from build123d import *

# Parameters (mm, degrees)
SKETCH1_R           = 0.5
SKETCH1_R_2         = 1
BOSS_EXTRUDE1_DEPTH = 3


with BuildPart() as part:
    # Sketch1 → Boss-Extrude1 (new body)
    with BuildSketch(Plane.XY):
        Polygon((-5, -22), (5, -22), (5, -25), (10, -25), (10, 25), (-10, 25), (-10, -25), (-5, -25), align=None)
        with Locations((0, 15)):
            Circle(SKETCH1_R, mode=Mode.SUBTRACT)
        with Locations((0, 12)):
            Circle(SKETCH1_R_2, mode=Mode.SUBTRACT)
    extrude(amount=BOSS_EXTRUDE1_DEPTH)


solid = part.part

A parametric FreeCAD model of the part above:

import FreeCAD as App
import Part
import Sketcher
from FreeCAD import Vector


def add_polygon(sketch, points):
    """Adds a closed chain of lines whose ends are joined by coincident constraints."""
    first, n = sketch.GeometryCount, len(points)
    for a, b in zip(points, points[1:] + points[:1]):
        sketch.addGeometry(Part.LineSegment(App.Vector(*a, 0), App.Vector(*b, 0)), False)
    for i in range(n):
        sketch.addConstraint(Sketcher.Constraint("Coincident", first + i, 2, first + (i + 1) % n, 1))

doc = App.newDocument("Part")
body = doc.addObject("PartDesign::Body", "Body")

# Sketch on XY plane
sketch1 = body.newObject("Sketcher::SketchObject", "Sketch")
sketch1.AttachmentSupport = (doc.getObject("XY_Plane"), [""])
sketch1.MapMode = "FlatFace"
add_polygon(sketch1, [(-5, -22), (5, -22), (5, -25), (10, -25), (10, 25), (-10, 25), (-10, -25), (-5, -25)])  # lines 0-7
sketch1.addGeometry(Part.Circle(Vector(0, 12, 0), Vector(0, 0, 1), 1), False)  # 8
sketch1.addGeometry(Part.Circle(Vector(0, 15, 0), Vector(0, 0, 1), 0.5), False)  # 9
sketch1.addConstraint(Sketcher.Constraint("Horizontal", 0))
sketch1.addConstraint(Sketcher.Constraint("Vertical", 1))
sketch1.addConstraint(Sketcher.Constraint("Horizontal", 2))
sketch1.addConstraint(Sketcher.Constraint("Vertical", 3))
sketch1.addConstraint(Sketcher.Constraint("Horizontal", 4))
sketch1.addConstraint(Sketcher.Constraint("Vertical", 5))
sketch1.addConstraint(Sketcher.Constraint("Horizontal", 6))
sketch1.addConstraint(Sketcher.Constraint("Vertical", 7))
sketch1.addConstraint(Sketcher.Constraint("Symmetric", 2, 2, 4, 2, -1, 1))
sketch1.addConstraint(Sketcher.Constraint("Symmetric", 1, 2, 6, 2, -2))
sketch1.addConstraint(Sketcher.Constraint("PointOnObject", 8, 3, -2))
sketch1.addConstraint(Sketcher.Constraint("PointOnObject", 9, 3, -2))
sketch1.addConstraint(Sketcher.Constraint("Diameter", 8, 2.0))
sketch1.addConstraint(Sketcher.Constraint("Diameter", 9, 1.0))
sketch1.addConstraint(Sketcher.Constraint("DistanceX", 0, 1, 0, 2, 10.0))
sketch1.addConstraint(Sketcher.Constraint("DistanceX", 2, 1, 2, 2, 5.0))
sketch1.addConstraint(Sketcher.Constraint("DistanceY", 1, 2, 1, 1, 3.0))
sketch1.addConstraint(Sketcher.Constraint("DistanceY", 3, 1, 3, 2, 50.0))
sketch1.addConstraint(Sketcher.Constraint("DistanceY", -1, 1, 8, 3, 12.0))
sketch1.addConstraint(Sketcher.Constraint("DistanceY", -1, 1, 9, 3, 15.0))
pad1 = body.newObject("PartDesign::Pad", "Pad")
pad1.Profile = sketch1
pad1.Length = 3

doc.recompute()
